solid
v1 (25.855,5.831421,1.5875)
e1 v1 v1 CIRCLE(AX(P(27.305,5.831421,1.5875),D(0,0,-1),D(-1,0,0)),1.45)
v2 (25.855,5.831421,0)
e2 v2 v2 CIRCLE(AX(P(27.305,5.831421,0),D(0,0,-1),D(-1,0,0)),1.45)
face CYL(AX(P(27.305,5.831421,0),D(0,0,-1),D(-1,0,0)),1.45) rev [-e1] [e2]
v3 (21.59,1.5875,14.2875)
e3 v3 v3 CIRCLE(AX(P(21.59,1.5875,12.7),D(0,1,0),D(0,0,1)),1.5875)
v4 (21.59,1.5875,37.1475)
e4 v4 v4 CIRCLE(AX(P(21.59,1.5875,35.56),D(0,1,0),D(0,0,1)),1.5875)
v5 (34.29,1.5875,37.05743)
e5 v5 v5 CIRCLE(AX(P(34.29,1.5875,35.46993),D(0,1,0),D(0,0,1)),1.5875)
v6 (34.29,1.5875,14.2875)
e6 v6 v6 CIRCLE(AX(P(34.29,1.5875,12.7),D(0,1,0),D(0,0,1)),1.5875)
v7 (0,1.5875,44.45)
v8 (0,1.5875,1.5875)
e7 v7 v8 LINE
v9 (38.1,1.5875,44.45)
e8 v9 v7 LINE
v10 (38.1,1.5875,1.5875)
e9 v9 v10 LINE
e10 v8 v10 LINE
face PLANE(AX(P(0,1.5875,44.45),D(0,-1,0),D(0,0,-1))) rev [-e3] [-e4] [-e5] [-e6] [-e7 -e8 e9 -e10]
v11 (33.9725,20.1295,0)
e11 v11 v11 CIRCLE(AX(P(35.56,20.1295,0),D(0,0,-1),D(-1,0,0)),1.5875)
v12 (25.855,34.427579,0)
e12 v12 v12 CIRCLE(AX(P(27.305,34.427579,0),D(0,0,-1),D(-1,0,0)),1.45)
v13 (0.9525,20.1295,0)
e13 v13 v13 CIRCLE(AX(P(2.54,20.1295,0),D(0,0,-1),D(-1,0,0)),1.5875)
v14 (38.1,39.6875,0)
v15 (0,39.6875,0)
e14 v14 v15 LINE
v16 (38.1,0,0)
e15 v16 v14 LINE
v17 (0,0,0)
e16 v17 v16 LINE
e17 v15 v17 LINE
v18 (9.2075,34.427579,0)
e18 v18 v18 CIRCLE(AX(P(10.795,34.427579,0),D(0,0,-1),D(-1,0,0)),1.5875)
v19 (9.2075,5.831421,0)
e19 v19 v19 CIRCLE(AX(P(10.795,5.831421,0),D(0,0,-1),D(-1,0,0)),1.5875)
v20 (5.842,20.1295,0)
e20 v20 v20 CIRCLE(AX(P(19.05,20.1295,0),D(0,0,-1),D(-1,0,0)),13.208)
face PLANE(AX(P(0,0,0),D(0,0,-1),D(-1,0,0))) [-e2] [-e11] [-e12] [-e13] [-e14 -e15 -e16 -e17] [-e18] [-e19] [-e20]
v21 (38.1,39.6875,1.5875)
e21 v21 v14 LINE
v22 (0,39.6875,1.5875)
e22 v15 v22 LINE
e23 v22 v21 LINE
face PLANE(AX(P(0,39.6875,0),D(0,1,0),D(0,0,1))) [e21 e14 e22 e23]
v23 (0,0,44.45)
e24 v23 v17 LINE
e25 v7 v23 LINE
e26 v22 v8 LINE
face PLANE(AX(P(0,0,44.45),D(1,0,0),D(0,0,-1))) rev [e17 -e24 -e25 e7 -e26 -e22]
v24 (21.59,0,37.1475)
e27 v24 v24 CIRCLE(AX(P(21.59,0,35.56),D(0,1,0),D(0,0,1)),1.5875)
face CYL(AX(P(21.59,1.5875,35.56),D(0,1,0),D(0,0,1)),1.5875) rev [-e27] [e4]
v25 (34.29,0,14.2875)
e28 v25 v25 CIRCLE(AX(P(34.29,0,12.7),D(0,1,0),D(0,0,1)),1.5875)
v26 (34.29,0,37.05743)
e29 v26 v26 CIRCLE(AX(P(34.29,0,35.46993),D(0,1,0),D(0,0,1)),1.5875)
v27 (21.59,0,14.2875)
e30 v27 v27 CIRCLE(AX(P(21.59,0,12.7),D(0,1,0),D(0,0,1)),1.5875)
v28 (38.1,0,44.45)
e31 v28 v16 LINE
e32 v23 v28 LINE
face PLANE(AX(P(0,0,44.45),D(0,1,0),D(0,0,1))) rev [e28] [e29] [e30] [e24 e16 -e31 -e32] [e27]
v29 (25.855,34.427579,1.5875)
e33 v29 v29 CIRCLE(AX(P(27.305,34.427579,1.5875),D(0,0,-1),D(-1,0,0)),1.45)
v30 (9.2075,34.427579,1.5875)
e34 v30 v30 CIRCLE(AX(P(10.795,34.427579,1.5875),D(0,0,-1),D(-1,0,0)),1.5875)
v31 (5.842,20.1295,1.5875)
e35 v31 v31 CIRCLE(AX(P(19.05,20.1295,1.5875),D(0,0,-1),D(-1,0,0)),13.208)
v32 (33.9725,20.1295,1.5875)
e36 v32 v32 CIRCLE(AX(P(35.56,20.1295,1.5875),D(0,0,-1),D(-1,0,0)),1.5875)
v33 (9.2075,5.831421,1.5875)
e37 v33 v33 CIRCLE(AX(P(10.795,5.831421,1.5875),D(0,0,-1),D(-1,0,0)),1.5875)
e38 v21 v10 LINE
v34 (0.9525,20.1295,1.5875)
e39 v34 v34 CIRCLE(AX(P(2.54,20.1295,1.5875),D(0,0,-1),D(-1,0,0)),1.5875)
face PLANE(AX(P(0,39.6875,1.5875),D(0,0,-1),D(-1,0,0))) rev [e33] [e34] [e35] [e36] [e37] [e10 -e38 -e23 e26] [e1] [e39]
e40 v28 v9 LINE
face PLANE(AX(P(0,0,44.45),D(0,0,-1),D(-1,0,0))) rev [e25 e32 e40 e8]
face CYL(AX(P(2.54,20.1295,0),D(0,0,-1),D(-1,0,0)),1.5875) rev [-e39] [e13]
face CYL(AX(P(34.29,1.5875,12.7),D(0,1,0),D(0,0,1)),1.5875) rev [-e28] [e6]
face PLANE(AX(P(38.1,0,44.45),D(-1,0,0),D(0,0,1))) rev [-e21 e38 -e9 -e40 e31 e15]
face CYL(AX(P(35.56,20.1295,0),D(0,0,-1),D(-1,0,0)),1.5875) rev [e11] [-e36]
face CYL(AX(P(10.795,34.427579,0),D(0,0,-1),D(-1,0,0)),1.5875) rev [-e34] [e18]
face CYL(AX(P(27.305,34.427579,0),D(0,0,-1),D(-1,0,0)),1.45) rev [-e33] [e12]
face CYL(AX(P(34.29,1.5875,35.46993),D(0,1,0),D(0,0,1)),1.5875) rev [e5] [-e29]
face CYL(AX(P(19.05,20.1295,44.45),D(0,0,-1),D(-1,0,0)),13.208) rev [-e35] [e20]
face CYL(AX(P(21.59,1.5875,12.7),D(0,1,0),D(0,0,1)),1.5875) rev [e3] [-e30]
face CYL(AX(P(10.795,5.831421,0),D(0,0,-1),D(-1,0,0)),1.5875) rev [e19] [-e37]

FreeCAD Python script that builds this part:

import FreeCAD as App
import Part
import Sketcher
Q = App.Units.Quantity


def add_polygon(sketch, points):
    """Adds a closed chain of lines whose ends are joined by coincident constraints."""
    first, n = sketch.GeometryCount, len(points)
    for a, b in zip(points, points[1:] + points[:1]):
        sketch.addGeometry(Part.LineSegment(App.Vector(*a, 0), App.Vector(*b, 0)), False)
    for i in range(n):
        sketch.addConstraint(Sketcher.Constraint("Coincident", first + i, 2, first + (i + 1) % n, 1))

doc = App.newDocument("Part")
body = doc.addObject("PartDesign::Body", "Body")

# Sketch on XY plane
sketch1 = body.newObject("Sketcher::SketchObject", "Sketch")
sketch1.AttachmentSupport = (doc.getObject("XY_Plane"), [""])
sketch1.MapMode = "FlatFace"
add_polygon(sketch1, [(0, 1.6), (0, 0), (38.1, 0), (38.1, 1.6)])  # lines 0-3
sketch1.addConstraint(Sketcher.Constraint("Vertical", 0))
sketch1.addConstraint(Sketcher.Constraint("Horizontal", 1))
sketch1.addConstraint(Sketcher.Constraint("Vertical", 2))
sketch1.addConstraint(Sketcher.Constraint("Horizontal", 3))
sketch1.addConstraint(Sketcher.Constraint("Coincident", 0, 2, -1, 1))
sketch1.addConstraint(Sketcher.Constraint("DistanceX", 1, 1, 1, 2, Q("1.5 in")))
sketch1.addConstraint(Sketcher.Constraint("DistanceY", 0, 2, 0, 1, Q("0.0625 in")))
pad1 = body.newObject("PartDesign::Pad", "Pad")
pad1.Profile = sketch1
pad1.Length = Q("1.75 in")

# Sketch on XZ plane
sketch2 = body.newObject("Sketcher::SketchObject", "Sketch001")
sketch2.AttachmentSupport = (doc.getObject("XZ_Plane"), [""])
sketch2.MapMode = "FlatFace"
sketch2.AttachmentOffset = App.Placement(App.Vector(0, 0, -0.0625 * 25.4), App.Rotation())
add_polygon(sketch2, [(0, 0), (0, 1.6), (38.1, 1.6), (38.1, 0)])  # lines 0-3
sketch2.addConstraint(Sketcher.Constraint("Vertical", 0))
sketch2.addConstraint(Sketcher.Constraint("Horizontal", 1))
sketch2.addConstraint(Sketcher.Constraint("Vertical", 2))
sketch2.addConstraint(Sketcher.Constraint("Horizontal", 3))
sketch2.addConstraint(Sketcher.Constraint("Coincident", 3, 2, -1, 1))
sketch2.addConstraint(Sketcher.Constraint("DistanceX", 1, 1, 1, 2, Q("1.5 in")))
sketch2.addConstraint(Sketcher.Constraint("DistanceY", 0, 1, 0, 2, Q("0.0625 in")))
pad2 = body.newObject("PartDesign::Pad", "Pad001")
pad2.Profile = sketch2
pad2.Length = Q("1.5 in")
pad2.Reversed = True

# Sketch on XY plane
sketch3 = body.newObject("Sketcher::SketchObject", "Sketch002")
sketch3.AttachmentSupport = (doc.getObject("XY_Plane"), [""])
sketch3.MapMode = "FlatFace"
sketch3.addGeometry(Part.Circle(App.Vector(19, 20, 0), App.Vector(0, 0, 1), 13), False)
sketch3.addConstraint(Sketcher.Constraint("Diameter", 0, Q("1.04 in")))
sketch3.addConstraint(Sketcher.Constraint("DistanceX", -1, 1, 0, 3, Q("0.75 in")))
sketch3.addConstraint(Sketcher.Constraint("DistanceY", -1, 1, 0, 3, Q("0.7925 in")))
pocket1 = body.newObject("PartDesign::Pocket", "Pocket")
pocket1.Profile = sketch3
pocket1.Type = "ThroughAll"
pocket1.Reversed = True

# Sketch on XY plane
sketch4 = body.newObject("Sketcher::SketchObject", "Sketch003")
sketch4.AttachmentSupport = (doc.getObject("XY_Plane"), [""])
sketch4.MapMode = "FlatFace"
sketch4.addGeometry(Part.Circle(App.Vector(35.6, 20.1, 0), App.Vector(0, 0, 1), 1.6), False)
sketch4.addGeometry(Part.Circle(App.Vector(10.8, 34.4, 0), App.Vector(0, 0, 1), 1.6), False)
sketch4.addGeometry(Part.Circle(App.Vector(2.5, 20.1, 0), App.Vector(0, 0, 1), 1.6), False)
sketch4.addGeometry(Part.Circle(App.Vector(10.8, 5.8, 0), App.Vector(0, 0, 1), 1.6), False)
sketch4.addConstraint(Sketcher.Constraint("Equal", 0, 1))
sketch4.addConstraint(Sketcher.Constraint("Equal", 1, 2))
sketch4.addConstraint(Sketcher.Constraint("Equal", 2, 3))
sketch4.addConstraint(Sketcher.Constraint("Horizontal", 0, 3, 2, 3))
sketch4.addConstraint(Sketcher.Constraint("Vertical", 1, 3, 3, 3))
sketch4.addConstraint(Sketcher.Constraint("Diameter", 0, Q("0.125 in")))
sketch4.addConstraint(Sketcher.Constraint("DistanceX", -1, 1, 0, 3, Q("1.4 in")))
sketch4.addConstraint(Sketcher.Constraint("DistanceX", -1, 1, 2, 3, Q("0.1 in")))
sketch4.addConstraint(Sketcher.Constraint("DistanceX", -1, 1, 1, 3, Q("0.425 in")))
sketch4.addConstraint(Sketcher.Constraint("DistanceY", -1, 1, 0, 3, Q("0.7925 in")))
sketch4.addConstraint(Sketcher.Constraint("DistanceY", -1, 1, 1, 3, Q("34.427579 mm")))
sketch4.addConstraint(Sketcher.Constraint("DistanceY", -1, 1, 3, 3, Q("5.831421 mm")))
doc.recompute()
hole = body.newObject("PartDesign::Hole", "Hole")
hole.Profile = sketch4
hole.ThreadType = "None"
hole.Diameter = Q("0.125 in")
hole.DepthType = "ThroughAll"
hole.Reversed = True

# Sketch on XZ plane
sketch5 = body.newObject("Sketcher::SketchObject", "Sketch004")
sketch5.AttachmentSupport = (doc.getObject("XZ_Plane"), [""])
sketch5.MapMode = "FlatFace"
sketch5.AttachmentOffset = App.Placement(App.Vector(0, 0, -0.0625 * 25.4), App.Rotation())
sketch5.addGeometry(Part.Circle(App.Vector(34.3, 12.7, 0), App.Vector(0, 0, 1), 1.6), False)
sketch5.addGeometry(Part.Circle(App.Vector(21.6, 12.7, 0), App.Vector(0, 0, 1), 1.6), False)
sketch5.addGeometry(Part.Circle(App.Vector(21.6, 35.6, 0), App.Vector(0, 0, 1), 1.6), False)
sketch5.addGeometry(Part.Circle(App.Vector(34.3, 35.5, 0), App.Vector(0, 0, 1), 1.6), False)
sketch5.addConstraint(Sketcher.Constraint("Equal", 0, 1))
sketch5.addConstraint(Sketcher.Constraint("Equal", 1, 2))
sketch5.addConstraint(Sketcher.Constraint("Equal", 2, 3))
sketch5.addConstraint(Sketcher.Constraint("Horizontal", 0, 3, 1, 3))
sketch5.addConstraint(Sketcher.Constraint("Vertical", 1, 3, 2, 3))
sketch5.addConstraint(Sketcher.Constraint("Vertical", 0, 3, 3, 3))
sketch5.addConstraint(Sketcher.Constraint("Diameter", 0, Q("0.125 in")))
sketch5.addConstraint(Sketcher.Constraint("DistanceY", -1, 1, 0, 3, Q("0.5 in")))
sketch5.addConstraint(Sketcher.Constraint("DistanceY", -1, 1, 2, 3, Q("1.4 in")))
sketch5.addConstraint(Sketcher.Constraint("DistanceX", 1, 3, 0, 3, Q("0.5 in")))
sketch5.addConstraint(Sketcher.Constraint("DistanceX", -1, 1, 0, 3, Q("1.35 in")))
sketch5.addConstraint(Sketcher.Constraint("DistanceY", -1, 1, 3, 3, Q("35.46993 mm")))
doc.recompute()
hole2 = body.newObject("PartDesign::Hole", "Hole001")
hole2.Profile = sketch5
hole2.ThreadType = "None"
hole2.Diameter = Q("0.125 in")
hole2.DepthType = "ThroughAll"
hole2.Reversed = True

# Sketch on XY plane
sketch6 = body.newObject("Sketcher::SketchObject", "Sketch005")
sketch6.AttachmentSupport = (doc.getObject("XY_Plane"), [""])
sketch6.MapMode = "FlatFace"
sketch6.addGeometry(Part.Circle(App.Vector(27.3, 5.8, 0), App.Vector(0, 0, 1), 1.4), False)
sketch6.addGeometry(Part.Circle(App.Vector(27.3, 34.4, 0), App.Vector(0, 0, 1), 1.4), False)
sketch6.addConstraint(Sketcher.Constraint("Equal", 0, 1))
sketch6.addConstraint(Sketcher.Constraint("Vertical", 0, 3, 1, 3))
sketch6.addConstraint(Sketcher.Constraint("Diameter", 0, Q("2.9 mm")))
sketch6.addConstraint(Sketcher.Constraint("DistanceX", -1, 1, 0, 3, Q("1.075 in")))
sketch6.addConstraint(Sketcher.Constraint("DistanceY", -1, 1, 0, 3, Q("5.831421 mm")))
sketch6.addConstraint(Sketcher.Constraint("DistanceY", -1, 1, 1, 3, Q("34.427579 mm")))
doc.recompute()
hole3 = body.newObject("PartDesign::Hole", "Hole002")
hole3.Profile = sketch6
hole3.ThreadType = "None"
hole3.Diameter = 2.9
hole3.DepthType = "Dimension"
hole3.Depth = Q("0.14 in")
hole3.DrillPoint = "Angled"
hole3.DrillPointAngle = 118
hole3.Reversed = True

doc.recompute()
